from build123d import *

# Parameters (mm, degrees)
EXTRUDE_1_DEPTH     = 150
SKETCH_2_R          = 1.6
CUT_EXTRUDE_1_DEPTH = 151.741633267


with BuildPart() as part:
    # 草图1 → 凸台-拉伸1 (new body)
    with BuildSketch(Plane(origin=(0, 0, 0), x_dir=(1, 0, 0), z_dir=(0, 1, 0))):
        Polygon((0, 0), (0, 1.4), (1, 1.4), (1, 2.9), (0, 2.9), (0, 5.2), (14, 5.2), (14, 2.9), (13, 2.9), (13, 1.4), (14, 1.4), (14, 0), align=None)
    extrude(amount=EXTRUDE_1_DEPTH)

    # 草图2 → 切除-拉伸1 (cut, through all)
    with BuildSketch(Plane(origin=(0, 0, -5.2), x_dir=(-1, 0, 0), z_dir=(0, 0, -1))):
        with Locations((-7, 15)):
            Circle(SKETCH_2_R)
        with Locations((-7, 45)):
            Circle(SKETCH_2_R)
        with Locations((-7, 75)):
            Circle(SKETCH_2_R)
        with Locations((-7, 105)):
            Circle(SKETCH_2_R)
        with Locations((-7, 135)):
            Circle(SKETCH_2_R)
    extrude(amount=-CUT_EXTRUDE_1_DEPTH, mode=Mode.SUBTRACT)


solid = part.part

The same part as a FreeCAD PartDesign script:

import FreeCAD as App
import Part
import Sketcher
from FreeCAD import Vector


def add_polygon(sketch, points):
    """Adds a closed chain of lines whose ends are joined by coincident constraints."""
    first, n = sketch.GeometryCount, len(points)
    for a, b in zip(points, points[1:] + points[:1]):
        sketch.addGeometry(Part.LineSegment(App.Vector(*a, 0), App.Vector(*b, 0)), False)
    for i in range(n):
        sketch.addConstraint(Sketcher.Constraint("Coincident", first + i, 2, first + (i + 1) % n, 1))

doc = App.newDocument("Part")
params = doc.addObject("Spreadsheet::Sheet", "Params")
for row, (alias, value) in enumerate([
    ("sketch1_width", "14 mm"),
    ("sketch1_width2", "1 mm"),
    ("sketch1_height", "1.4 mm"),
    ("sketch1_height2", "1.5 mm"),
    ("sketch1_height3", "2.3 mm"),
    ("pad1_length", "150 mm"),
    ("sketch2_diameter", "3.2 mm"),
], start=1):
    params.set(f"A{row}", alias)
    params.set(f"B{row}", "=" + value)
    params.setAlias(f"B{row}", alias)

body = doc.addObject("PartDesign::Body", "Body")

# Sketch on XZ plane
sketch1 = body.newObject("Sketcher::SketchObject", "Sketch")
sketch1.AttachmentSupport = (doc.getObject("XZ_Plane"), [""])
sketch1.MapMode = "FlatFace"
add_polygon(sketch1, [(0, -1.4), (0, 0), (14, 0), (14, -1.4), (13, -1.4), (13, -2.9), (14, -2.9), (14, -5.2), (0, -5.2), (0, -2.9), (1, -2.9), (1, -1.4)])  # lines 0-11
sketch1.addConstraint(Sketcher.Constraint("Vertical", 0))
sketch1.addConstraint(Sketcher.Constraint("Horizontal", 1))
sketch1.addConstraint(Sketcher.Constraint("Vertical", 2))
sketch1.addConstraint(Sketcher.Constraint("Horizontal", 3))
sketch1.addConstraint(Sketcher.Constraint("Vertical", 4))
sketch1.addConstraint(Sketcher.Constraint("Horizontal", 5))
sketch1.addConstraint(Sketcher.Constraint("Vertical", 6))
sketch1.addConstraint(Sketcher.Constraint("Horizontal", 7))
sketch1.addConstraint(Sketcher.Constraint("Vertical", 8))
sketch1.addConstraint(Sketcher.Constraint("Horizontal", 9))
sketch1.addConstraint(Sketcher.Constraint("Vertical", 10))
sketch1.addConstraint(Sketcher.Constraint("Horizontal", 11))
sketch1.addConstraint(Sketcher.Constraint("Coincident", 0, 2, -1, 1))
sketch1.addConstraint(Sketcher.Constraint("PointOnObject", 7, 2, -2))
sketch1.addConstraint(Sketcher.Constraint("Horizontal", 5, 2, 8, 2))
sketch1.addConstraint(Sketcher.Constraint("Horizontal", 3, 2, 10, 2))
sketch1.addConstraint(Sketcher.Constraint("Vertical", 2, 2, 5, 2))
sketch1.addConstraint(Sketcher.Constraint("Equal", 5, 9))
sketch1.addConstraint(Sketcher.Constraint("DistanceX", 1, 1, 1, 2, 14.0))
sketch1.addConstraint(Sketcher.Constraint("DistanceX", 3, 2, 3, 1, 1.0))
sketch1.addConstraint(Sketcher.Constraint("DistanceY", 0, 1, 0, 2, 1.4))
sketch1.addConstraint(Sketcher.Constraint("DistanceY", 4, 2, 4, 1, 1.5))
sketch1.addConstraint(Sketcher.Constraint("DistanceY", 6, 2, 6, 1, 2.3))
sketch1.setExpression("Constraints[30]", "Params.sketch1_width")
sketch1.setExpression("Constraints[31]", "Params.sketch1_width2")
sketch1.setExpression("Constraints[32]", "Params.sketch1_height")
sketch1.setExpression("Constraints[33]", "Params.sketch1_height2")
sketch1.setExpression("Constraints[34]", "Params.sketch1_height3")
pad1 = body.newObject("PartDesign::Pad", "Pad")
pad1.Profile = sketch1
pad1.setExpression("Length", "Params.pad1_length")
pad1.Reversed = True

# Sketch on XY plane
sketch2 = body.newObject("Sketcher::SketchObject", "Sketch001")
sketch2.AttachmentSupport = (doc.getObject("XY_Plane"), [""])
sketch2.MapMode = "FlatFace"
sketch2.AttachmentOffset = App.Placement(Vector(0, 0, -5.2), App.Rotation())
sketch2.addGeometry(Part.Circle(Vector(7, 15, 0), Vector(0, 0, 1), 1.6), False)
sketch2.addGeometry(Part.Circle(Vector(7, 45, 0), Vector(0, 0, 1), 1.6), False)
sketch2.addGeometry(Part.Circle(Vector(7, 75, 0), Vector(0, 0, 1), 1.6), False)
sketch2.addGeometry(Part.Circle(Vector(7, 105, 0), Vector(0, 0, 1), 1.6), False)
sketch2.addGeometry(Part.Circle(Vector(7, 135, 0), Vector(0, 0, 1), 1.6), False)
sketch2.addConstraint(Sketcher.Constraint("Equal", 0, 1))
sketch2.addConstraint(Sketcher.Constraint("Equal", 1, 2))
sketch2.addConstraint(Sketcher.Constraint("Equal", 2, 3))
sketch2.addConstraint(Sketcher.Constraint("Equal", 3, 4))
sketch2.addConstraint(Sketcher.Constraint("Vertical", 0, 3, 1, 3))
sketch2.addConstraint(Sketcher.Constraint("Vertical", 1, 3, 2, 3))
sketch2.addConstraint(Sketcher.Constraint("Vertical", 2, 3, 3, 3))
sketch2.addConstraint(Sketcher.Constraint("Vertical", 3, 3, 4, 3))
sketch2.addConstraint(Sketcher.Constraint("Diameter", 0, 3.2))
sketch2.addConstraint(Sketcher.Constraint("DistanceX", -1, 1, 0, 3, 7.0))
sketch2.addConstraint(Sketcher.Constraint("DistanceY", -1, 1, 0, 3, 15.0))
sketch2.addConstraint(Sketcher.Constraint("DistanceY", -1, 1, 1, 3, 45.0))
sketch2.addConstraint(Sketcher.Constraint("DistanceY", -1, 1, 2, 3, 75.0))
sketch2.addConstraint(Sketcher.Constraint("DistanceY", -1, 1, 3, 3, 105.0))
sketch2.addConstraint(Sketcher.Constraint("DistanceY", -1, 1, 4, 3, 135.0))
sketch2.setExpression("Constraints[8]", "Params.sketch2_diameter")
pocket1 = body.newObject("PartDesign::Pocket", "Pocket")
pocket1.Profile = sketch2
pocket1.Type = "ThroughAll"
pocket1.Reversed = True

doc.recompute()
